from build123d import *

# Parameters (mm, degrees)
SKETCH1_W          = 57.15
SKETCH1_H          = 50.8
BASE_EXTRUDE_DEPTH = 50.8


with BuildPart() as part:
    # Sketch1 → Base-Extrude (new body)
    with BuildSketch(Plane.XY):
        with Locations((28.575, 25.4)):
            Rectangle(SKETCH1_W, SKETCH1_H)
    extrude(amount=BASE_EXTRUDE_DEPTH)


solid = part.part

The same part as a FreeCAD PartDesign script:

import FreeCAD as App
import Part
import Sketcher

V = App.Vector
Q = App.Units.Quantity

doc = App.newDocument("Part")
params = doc.addObject("Spreadsheet::Sheet", "Params")
for row, (alias, value) in enumerate([
    ("sketch1_height", "2 in"),
    ("sketch1_width", "2.25 in"),
    ("pad1_length", "2 in"),
], start=1):
    params.set(f"A{row}", alias)
    params.set(f"B{row}", "=" + value)
    params.setAlias(f"B{row}", alias)

body = doc.addObject("PartDesign::Body", "Body")

sketch1 = body.newObject("Sketcher::SketchObject", "Sketch")
sketch1.AttachmentSupport = (doc.getObject("XY_Plane"), [""])
sketch1.MapMode = "FlatFace"
sketch1.addGeometry([
    Part.LineSegment(V(0, 51, 0), V(0, 0, 0)),
    Part.LineSegment(V(0, 0, 0), V(57, 0, 0)),
    Part.LineSegment(V(57, 0, 0), V(57, 51, 0)),
    Part.LineSegment(V(57, 51, 0), V(0, 51, 0)),
], False)
sketch1.addConstraint([
    Sketcher.Constraint("Coincident", 0, 2, 1, 1),
    Sketcher.Constraint("Coincident", 1, 2, 2, 1),
    Sketcher.Constraint("Coincident", 2, 2, 3, 1),
    Sketcher.Constraint("Coincident", 3, 2, 0, 1),
    Sketcher.Constraint("Vertical", 0),
    Sketcher.Constraint("Horizontal", 1),
    Sketcher.Constraint("Vertical", 2),
    Sketcher.Constraint("Horizontal", 3),
    Sketcher.Constraint("Coincident", 0, 2, -1, 1),
    Sketcher.Constraint("DistanceY", 0, 2, 0, 1, Q("2 in")),
    Sketcher.Constraint("DistanceX", 1, 1, 1, 2, Q("2.25 in")),
])
sketch1.setExpression("Constraints[9]", "Params.sketch1_height")
sketch1.setExpression("Constraints[10]", "Params.sketch1_width")
pad1 = body.newObject("PartDesign::Pad", "Pad")
pad1.Profile = sketch1
pad1.setExpression("Length", "Params.pad1_length")

doc.recompute()
